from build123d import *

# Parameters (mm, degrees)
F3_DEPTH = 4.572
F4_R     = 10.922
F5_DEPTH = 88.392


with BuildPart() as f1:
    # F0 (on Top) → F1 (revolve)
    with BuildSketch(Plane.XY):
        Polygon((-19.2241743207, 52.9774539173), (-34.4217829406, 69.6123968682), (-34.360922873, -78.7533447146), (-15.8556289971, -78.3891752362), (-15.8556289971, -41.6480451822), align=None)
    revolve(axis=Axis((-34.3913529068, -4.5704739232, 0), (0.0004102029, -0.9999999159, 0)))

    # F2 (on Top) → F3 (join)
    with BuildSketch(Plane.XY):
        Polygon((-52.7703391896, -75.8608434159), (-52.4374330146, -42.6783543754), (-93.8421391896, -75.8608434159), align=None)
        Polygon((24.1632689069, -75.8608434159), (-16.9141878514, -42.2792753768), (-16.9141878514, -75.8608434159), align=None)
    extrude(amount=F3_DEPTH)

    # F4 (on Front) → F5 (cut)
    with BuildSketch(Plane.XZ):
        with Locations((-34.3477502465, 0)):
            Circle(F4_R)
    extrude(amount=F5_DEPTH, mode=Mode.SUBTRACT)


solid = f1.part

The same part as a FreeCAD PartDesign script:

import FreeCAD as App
import Part
import Sketcher
from FreeCAD import Vector
Q = App.Units.Quantity

doc = App.newDocument("Part")
body = doc.addObject("PartDesign::Body", "Body")

# Sketch on XY plane
sketch1 = body.newObject("Sketcher::SketchObject", "Sketch")
sketch1.AttachmentSupport = (doc.getObject("XY_Plane"), [""])
sketch1.MapMode = "FlatFace"
sketch1.addGeometry([
    Part.LineSegment(Vector(-19, 53, 0), Vector(-34, 70, 0)),  # 0
    Part.LineSegment(Vector(-34, 70, 0), Vector(-34, -79, 0)),  # 1
    Part.LineSegment(Vector(-34, -79, 0), Vector(-16, -78, 0)),  # 2
    Part.LineSegment(Vector(-16, -78, 0), Vector(-16, -42, 0)),  # 3
    Part.LineSegment(Vector(-16, -42, 0), Vector(-19, 53, 0)),  # 4
], False)
sketch1.addGeometry(Part.LineSegment(Vector(-34, 70, 0), Vector(-34, -79, 0)), True)  # axis
sketch1.addConstraint([
    Sketcher.Constraint("Coincident", 0, 2, 1, 1),
    Sketcher.Constraint("Coincident", 1, 2, 2, 1),
    Sketcher.Constraint("Coincident", 2, 2, 3, 1),
    Sketcher.Constraint("Coincident", 3, 2, 4, 1),
    Sketcher.Constraint("Coincident", 4, 2, 0, 1),
    Sketcher.Constraint("Vertical", 3),
    Sketcher.Constraint("Coincident", 5, 1, 0, 2),
    Sketcher.Constraint("Coincident", 5, 2, 1, 2),
    Sketcher.Constraint("DistanceY", 3, 1, 3, 2, Q("36.74113 mm")),
    Sketcher.Constraint("DistanceY", 1, 2, 3, 2, Q("37.1053 mm")),
    Sketcher.Constraint("DistanceY", 3, 2, 4, 2, Q("94.625499 mm")),
    Sketcher.Constraint("Distance", 4, Q("94.685438 mm")),
    Sketcher.Constraint("DistanceX", 2, 2, -1, 1, Q("15.855629 mm")),
    Sketcher.Constraint("DistanceX", 0, 2, 1, 2, Q("0.06086 mm")),
    Sketcher.Constraint("DistanceY", 1, 2, 0, 2, Q("148.365742 mm")),
    Sketcher.Constraint("DistanceX", 0, 2, 4, 2, Q("15.197609 mm")),
    Sketcher.Constraint("DistanceY", -1, 1, 0, 2, Q("69.612397 mm")),
])
revolution = body.newObject("PartDesign::Revolution", "Revolution")
revolution.Profile = sketch1
revolution.ReferenceAxis = (sketch1, ["Axis0"])
revolution.Angle = 360

# Sketch on XY plane
sketch2 = body.newObject("Sketcher::SketchObject", "Sketch001")
sketch2.AttachmentSupport = (doc.getObject("XY_Plane"), [""])
sketch2.MapMode = "FlatFace"
sketch2.addGeometry([
    Part.LineSegment(Vector(-53, -76, 0), Vector(-52, -43, 0)),  # 0
    Part.LineSegment(Vector(-52, -43, 0), Vector(-94, -76, 0)),  # 1
    Part.LineSegment(Vector(-94, -76, 0), Vector(-53, -76, 0)),  # 2
    Part.LineSegment(Vector(24, -76, 0), Vector(-17, -42, 0)),  # 3
    Part.LineSegment(Vector(-17, -42, 0), Vector(-17, -76, 0)),  # 4
    Part.LineSegment(Vector(-17, -76, 0), Vector(24, -76, 0)),  # 5
], False)
sketch2.addConstraint([
    Sketcher.Constraint("Coincident", 0, 2, 1, 1),
    Sketcher.Constraint("Coincident", 1, 2, 2, 1),
    Sketcher.Constraint("Coincident", 2, 2, 0, 1),
    Sketcher.Constraint("Coincident", 3, 2, 4, 1),
    Sketcher.Constraint("Coincident", 4, 2, 5, 1),
    Sketcher.Constraint("Coincident", 5, 2, 3, 1),
    Sketcher.Constraint("Horizontal", 2),
    Sketcher.Constraint("Vertical", 4),
    Sketcher.Constraint("Horizontal", 5),
    Sketcher.Constraint("Horizontal", 2, 2, 4, 2),
    Sketcher.Constraint("DistanceX", 2, 1, 2, 2, Q("1.617 in")),
    Sketcher.Constraint("Distance", 1, Q("2.089 in")),
    Sketcher.Constraint("DistanceY", 4, 2, 4, 1, Q("33.581568 mm")),
    Sketcher.Constraint("DistanceX", 0, 2, 5, 2, Q("76.600702 mm")),
    Sketcher.Constraint("Distance", 0, Q("33.184159 mm")),
    Sketcher.Constraint("Distance", 3, Q("53.05732 mm")),
    Sketcher.Constraint("DistanceX", 1, 2, -1, 1, Q("93.842139 mm")),
    Sketcher.Constraint("DistanceY", 0, 2, -1, 1, Q("42.678354 mm")),
])
pad1 = body.newObject("PartDesign::Pad", "Pad")
pad1.Profile = sketch2
pad1.Length = Q("0.18 in")

# Sketch on XZ plane
sketch3 = body.newObject("Sketcher::SketchObject", "Sketch002")
sketch3.AttachmentSupport = (doc.getObject("XZ_Plane"), [""])
sketch3.MapMode = "FlatFace"
sketch3.addGeometry(Part.Circle(Vector(-34, 0, 0), Vector(0, 0, 1), 11), False)
sketch3.addConstraint([
    Sketcher.Constraint("PointOnObject", 0, 3, -1),
    Sketcher.Constraint("Diameter", 0, Q("0.86 in")),
    Sketcher.Constraint("DistanceX", 0, 3, -1, 1, Q("34.34775 mm")),
])
pocket1 = body.newObject("PartDesign::Pocket", "Pocket")
pocket1.Profile = sketch3
pocket1.Length = Q("3.48 in")
pocket1.Reversed = True

doc.recompute()
